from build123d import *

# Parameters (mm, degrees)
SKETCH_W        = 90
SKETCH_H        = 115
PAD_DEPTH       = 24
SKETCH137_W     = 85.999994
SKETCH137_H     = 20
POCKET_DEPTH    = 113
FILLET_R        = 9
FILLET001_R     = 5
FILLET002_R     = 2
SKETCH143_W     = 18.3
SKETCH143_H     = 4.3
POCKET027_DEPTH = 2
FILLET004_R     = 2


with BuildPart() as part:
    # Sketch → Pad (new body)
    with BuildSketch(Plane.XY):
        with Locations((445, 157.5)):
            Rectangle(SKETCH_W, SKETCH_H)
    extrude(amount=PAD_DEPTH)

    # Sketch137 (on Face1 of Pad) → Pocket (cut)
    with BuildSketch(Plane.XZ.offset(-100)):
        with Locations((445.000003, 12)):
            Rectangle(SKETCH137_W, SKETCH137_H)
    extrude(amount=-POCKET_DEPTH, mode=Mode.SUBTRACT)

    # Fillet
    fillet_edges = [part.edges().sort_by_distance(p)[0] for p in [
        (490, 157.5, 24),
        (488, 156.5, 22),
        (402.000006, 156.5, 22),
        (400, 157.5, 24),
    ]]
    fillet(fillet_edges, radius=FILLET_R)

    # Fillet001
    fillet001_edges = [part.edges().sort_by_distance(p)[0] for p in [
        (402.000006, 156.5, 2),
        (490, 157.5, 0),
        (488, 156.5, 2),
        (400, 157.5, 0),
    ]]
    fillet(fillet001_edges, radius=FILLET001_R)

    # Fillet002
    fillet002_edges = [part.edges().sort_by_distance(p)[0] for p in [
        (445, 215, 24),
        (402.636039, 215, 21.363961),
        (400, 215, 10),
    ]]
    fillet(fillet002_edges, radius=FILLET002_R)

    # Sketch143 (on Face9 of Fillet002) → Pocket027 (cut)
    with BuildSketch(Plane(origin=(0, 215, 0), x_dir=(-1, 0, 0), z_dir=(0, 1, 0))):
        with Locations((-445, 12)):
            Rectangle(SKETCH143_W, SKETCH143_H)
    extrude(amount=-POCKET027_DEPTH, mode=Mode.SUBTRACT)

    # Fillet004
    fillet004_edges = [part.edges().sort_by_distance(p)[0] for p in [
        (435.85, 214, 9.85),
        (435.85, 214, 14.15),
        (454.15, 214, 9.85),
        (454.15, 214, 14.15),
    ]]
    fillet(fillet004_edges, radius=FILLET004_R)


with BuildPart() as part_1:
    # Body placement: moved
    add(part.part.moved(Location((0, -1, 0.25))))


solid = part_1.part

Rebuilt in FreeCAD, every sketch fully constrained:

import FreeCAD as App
import Part
import Sketcher
from FreeCAD import Vector
Q = App.Units.Quantity


def edges_at(feature, points):
    """Names of the edges that pass closest to the given points."""
    edges = feature.Shape.Edges
    near = lambda p: min(range(len(edges)), key=lambda i: edges[i].distToShape(Part.Vertex(*p))[0])
    return sorted({f"Edge{near(p) + 1}" for p in points})


def add_polygon(sketch, points):
    """Adds a closed chain of lines whose ends are joined by coincident constraints."""
    first, n = sketch.GeometryCount, len(points)
    for a, b in zip(points, points[1:] + points[:1]):
        sketch.addGeometry(Part.LineSegment(App.Vector(*a, 0), App.Vector(*b, 0)), False)
    for i in range(n):
        sketch.addConstraint(Sketcher.Constraint("Coincident", first + i, 2, first + (i + 1) % n, 1))

doc = App.newDocument("Part")
params = doc.addObject("Spreadsheet::Sheet", "Params")
for row, (alias, value) in enumerate([
    ("sketch1_width", "90 mm"),
    ("sketch1_height", "115 mm"),
    ("pad1_length", "24 mm"),
    ("sketch2_height", "20 mm"),
    ("pocket1_length", "113 mm"),
    ("fillet_radius", "9 mm"),
    ("fillet2_radius", "5 mm"),
    ("fillet3_radius", "2 mm"),
    ("sketch3_width", "18.3 mm"),
    ("sketch3_height", "4.3 mm"),
    ("pocket2_length", "2 mm"),
    ("fillet4_radius", "2 mm"),
], start=1):
    params.set(f"A{row}", alias)
    params.set(f"B{row}", "=" + value)
    params.setAlias(f"B{row}", alias)

body = doc.addObject("PartDesign::Body", "Body")

# Sketch on XY plane
sketch1 = doc.addObject("Sketcher::SketchObject", "Sketch")
body.addObject(sketch1)
sketch1.AttachmentSupport = (doc.XY_Plane, [""])
sketch1.MapMode = "FlatFace"
add_polygon(sketch1, [(400, 215), (400, 100), (490, 100), (490, 215)])  # lines 0-3
sketch1.addConstraint([
    Sketcher.Constraint("Vertical", 0),
    Sketcher.Constraint("Horizontal", 1),
    Sketcher.Constraint("Vertical", 2),
    Sketcher.Constraint("Horizontal", 3),
    Sketcher.Constraint("DistanceX", 1, 1, 1, 2, Q("90 mm")),
    Sketcher.Constraint("DistanceY", 0, 2, 0, 1, Q("115 mm")),
    Sketcher.Constraint("DistanceX", -1, 1, 0, 2, Q("400 mm")),
    Sketcher.Constraint("DistanceY", -1, 1, 0, 2, Q("100 mm")),
])
sketch1.setExpression("Constraints[8]", "Params.sketch1_width")
sketch1.setExpression("Constraints[9]", "Params.sketch1_height")
pad1 = doc.addObject("PartDesign::Pad", "Pad")
body.addObject(pad1)
pad1.Profile = sketch1
pad1.setExpression("Length", "Params.pad1_length")

# Sketch on XZ plane
sketch2 = doc.addObject("Sketcher::SketchObject", "Sketch001")
body.addObject(sketch2)
sketch2.AttachmentSupport = (doc.XZ_Plane, [""])
sketch2.MapMode = "FlatFace"
sketch2.AttachmentOffset = App.Placement(Vector(0, 0, -100), App.Rotation())
add_polygon(sketch2, [(402.000006, 22), (402.000006, 2), (488, 2), (488, 22)])  # lines 0-3
sketch2.addConstraint([
    Sketcher.Constraint("Vertical", 0),
    Sketcher.Constraint("Horizontal", 1),
    Sketcher.Constraint("Vertical", 2),
    Sketcher.Constraint("Horizontal", 3),
    Sketcher.Constraint("DistanceY", 0, 2, 0, 1, Q("20 mm")),
    Sketcher.Constraint("DistanceY", -1, 1, 0, 2, Q("2 mm")),
    Sketcher.Constraint("DistanceX", -1, 1, 1, 2, Q("488 mm")),
    Sketcher.Constraint("DistanceX", 1, 1, 1, 2, Q("85.999994 mm")),
])
sketch2.setExpression("Constraints[8]", "Params.sketch2_height")
pocket1 = doc.addObject("PartDesign::Pocket", "Pocket")
body.addObject(pocket1)
pocket1.Profile = sketch2
pocket1.setExpression("Length", "Params.pocket1_length")
doc.recompute()

fillet = doc.addObject("PartDesign::Fillet", "Fillet")
body.addObject(fillet)
fillet.Base = (pocket1, edges_at(pocket1, [
    (490, 157.5, 24),
    (488, 156.5, 22),
    (402, 156.5, 22),
    (400, 157.5, 24),
]))
fillet.setExpression("Radius", "Params.fillet_radius")
doc.recompute()

fillet2 = doc.addObject("PartDesign::Fillet", "Fillet001")
body.addObject(fillet2)
fillet2.Base = (fillet, edges_at(fillet, [
    (402, 156.5, 2),
    (490, 157.5, 0),
    (488, 156.5, 2),
    (400, 157.5, 0),
]))
fillet2.setExpression("Radius", "Params.fillet2_radius")
doc.recompute()

fillet3 = doc.addObject("PartDesign::Fillet", "Fillet002")
body.addObject(fillet3)
fillet3.Base = (fillet2, edges_at(fillet2, [(445, 215, 24), (402.636, 215, 21.364), (400, 215, 10)]))
fillet3.setExpression("Radius", "Params.fillet3_radius")

# Sketch on XZ plane
sketch3 = doc.addObject("Sketcher::SketchObject", "Sketch002")
body.addObject(sketch3)
sketch3.AttachmentSupport = (doc.XZ_Plane, [""])
sketch3.MapMode = "FlatFace"
sketch3.AttachmentOffset = App.Placement(Vector(0, 0, -215), App.Rotation())
add_polygon(sketch3, [(454.15, 14.15), (454.15, 9.85), (435.85, 9.85), (435.85, 14.15)])  # lines 0-3
sketch3.addConstraint([
    Sketcher.Constraint("Vertical", 0),
    Sketcher.Constraint("Horizontal", 1),
    Sketcher.Constraint("Vertical", 2),
    Sketcher.Constraint("Horizontal", 3),
    Sketcher.Constraint("DistanceX", 1, 2, 1, 1, Q("18.3 mm")),
    Sketcher.Constraint("DistanceY", 0, 2, 0, 1, Q("4.3 mm")),
    Sketcher.Constraint("DistanceX", -1, 1, 0, 2, Q("454.15 mm")),
    Sketcher.Constraint("DistanceY", -1, 1, 0, 2, Q("9.85 mm")),
])
sketch3.setExpression("Constraints[8]", "Params.sketch3_width")
sketch3.setExpression("Constraints[9]", "Params.sketch3_height")
pocket2 = doc.addObject("PartDesign::Pocket", "Pocket001")
body.addObject(pocket2)
pocket2.Profile = sketch3
pocket2.setExpression("Length", "Params.pocket2_length")
pocket2.Reversed = True
doc.recompute()

fillet4 = doc.addObject("PartDesign::Fillet", "Fillet003")
body.addObject(fillet4)
fillet4.Base = (pocket2, edges_at(pocket2, [
    (435.85, 214, 9.85),
    (435.85, 214, 14.15),
    (454.15, 214, 9.85),
    (454.15, 214, 14.15),
]))
fillet4.setExpression("Radius", "Params.fillet4_radius")
body2 = doc.addObject("PartDesign::Body", "Body001")
doc.recompute()

body.Placement = App.Placement(Vector(0, -1, 0.25), App.Rotation(Vector(0, 0, 1), 0))
boolean = doc.addObject("PartDesign::Boolean", "Boolean")
body2.addObject(boolean)
boolean.Type = "Fuse"
boolean.addObjects([body])

doc.recompute()
